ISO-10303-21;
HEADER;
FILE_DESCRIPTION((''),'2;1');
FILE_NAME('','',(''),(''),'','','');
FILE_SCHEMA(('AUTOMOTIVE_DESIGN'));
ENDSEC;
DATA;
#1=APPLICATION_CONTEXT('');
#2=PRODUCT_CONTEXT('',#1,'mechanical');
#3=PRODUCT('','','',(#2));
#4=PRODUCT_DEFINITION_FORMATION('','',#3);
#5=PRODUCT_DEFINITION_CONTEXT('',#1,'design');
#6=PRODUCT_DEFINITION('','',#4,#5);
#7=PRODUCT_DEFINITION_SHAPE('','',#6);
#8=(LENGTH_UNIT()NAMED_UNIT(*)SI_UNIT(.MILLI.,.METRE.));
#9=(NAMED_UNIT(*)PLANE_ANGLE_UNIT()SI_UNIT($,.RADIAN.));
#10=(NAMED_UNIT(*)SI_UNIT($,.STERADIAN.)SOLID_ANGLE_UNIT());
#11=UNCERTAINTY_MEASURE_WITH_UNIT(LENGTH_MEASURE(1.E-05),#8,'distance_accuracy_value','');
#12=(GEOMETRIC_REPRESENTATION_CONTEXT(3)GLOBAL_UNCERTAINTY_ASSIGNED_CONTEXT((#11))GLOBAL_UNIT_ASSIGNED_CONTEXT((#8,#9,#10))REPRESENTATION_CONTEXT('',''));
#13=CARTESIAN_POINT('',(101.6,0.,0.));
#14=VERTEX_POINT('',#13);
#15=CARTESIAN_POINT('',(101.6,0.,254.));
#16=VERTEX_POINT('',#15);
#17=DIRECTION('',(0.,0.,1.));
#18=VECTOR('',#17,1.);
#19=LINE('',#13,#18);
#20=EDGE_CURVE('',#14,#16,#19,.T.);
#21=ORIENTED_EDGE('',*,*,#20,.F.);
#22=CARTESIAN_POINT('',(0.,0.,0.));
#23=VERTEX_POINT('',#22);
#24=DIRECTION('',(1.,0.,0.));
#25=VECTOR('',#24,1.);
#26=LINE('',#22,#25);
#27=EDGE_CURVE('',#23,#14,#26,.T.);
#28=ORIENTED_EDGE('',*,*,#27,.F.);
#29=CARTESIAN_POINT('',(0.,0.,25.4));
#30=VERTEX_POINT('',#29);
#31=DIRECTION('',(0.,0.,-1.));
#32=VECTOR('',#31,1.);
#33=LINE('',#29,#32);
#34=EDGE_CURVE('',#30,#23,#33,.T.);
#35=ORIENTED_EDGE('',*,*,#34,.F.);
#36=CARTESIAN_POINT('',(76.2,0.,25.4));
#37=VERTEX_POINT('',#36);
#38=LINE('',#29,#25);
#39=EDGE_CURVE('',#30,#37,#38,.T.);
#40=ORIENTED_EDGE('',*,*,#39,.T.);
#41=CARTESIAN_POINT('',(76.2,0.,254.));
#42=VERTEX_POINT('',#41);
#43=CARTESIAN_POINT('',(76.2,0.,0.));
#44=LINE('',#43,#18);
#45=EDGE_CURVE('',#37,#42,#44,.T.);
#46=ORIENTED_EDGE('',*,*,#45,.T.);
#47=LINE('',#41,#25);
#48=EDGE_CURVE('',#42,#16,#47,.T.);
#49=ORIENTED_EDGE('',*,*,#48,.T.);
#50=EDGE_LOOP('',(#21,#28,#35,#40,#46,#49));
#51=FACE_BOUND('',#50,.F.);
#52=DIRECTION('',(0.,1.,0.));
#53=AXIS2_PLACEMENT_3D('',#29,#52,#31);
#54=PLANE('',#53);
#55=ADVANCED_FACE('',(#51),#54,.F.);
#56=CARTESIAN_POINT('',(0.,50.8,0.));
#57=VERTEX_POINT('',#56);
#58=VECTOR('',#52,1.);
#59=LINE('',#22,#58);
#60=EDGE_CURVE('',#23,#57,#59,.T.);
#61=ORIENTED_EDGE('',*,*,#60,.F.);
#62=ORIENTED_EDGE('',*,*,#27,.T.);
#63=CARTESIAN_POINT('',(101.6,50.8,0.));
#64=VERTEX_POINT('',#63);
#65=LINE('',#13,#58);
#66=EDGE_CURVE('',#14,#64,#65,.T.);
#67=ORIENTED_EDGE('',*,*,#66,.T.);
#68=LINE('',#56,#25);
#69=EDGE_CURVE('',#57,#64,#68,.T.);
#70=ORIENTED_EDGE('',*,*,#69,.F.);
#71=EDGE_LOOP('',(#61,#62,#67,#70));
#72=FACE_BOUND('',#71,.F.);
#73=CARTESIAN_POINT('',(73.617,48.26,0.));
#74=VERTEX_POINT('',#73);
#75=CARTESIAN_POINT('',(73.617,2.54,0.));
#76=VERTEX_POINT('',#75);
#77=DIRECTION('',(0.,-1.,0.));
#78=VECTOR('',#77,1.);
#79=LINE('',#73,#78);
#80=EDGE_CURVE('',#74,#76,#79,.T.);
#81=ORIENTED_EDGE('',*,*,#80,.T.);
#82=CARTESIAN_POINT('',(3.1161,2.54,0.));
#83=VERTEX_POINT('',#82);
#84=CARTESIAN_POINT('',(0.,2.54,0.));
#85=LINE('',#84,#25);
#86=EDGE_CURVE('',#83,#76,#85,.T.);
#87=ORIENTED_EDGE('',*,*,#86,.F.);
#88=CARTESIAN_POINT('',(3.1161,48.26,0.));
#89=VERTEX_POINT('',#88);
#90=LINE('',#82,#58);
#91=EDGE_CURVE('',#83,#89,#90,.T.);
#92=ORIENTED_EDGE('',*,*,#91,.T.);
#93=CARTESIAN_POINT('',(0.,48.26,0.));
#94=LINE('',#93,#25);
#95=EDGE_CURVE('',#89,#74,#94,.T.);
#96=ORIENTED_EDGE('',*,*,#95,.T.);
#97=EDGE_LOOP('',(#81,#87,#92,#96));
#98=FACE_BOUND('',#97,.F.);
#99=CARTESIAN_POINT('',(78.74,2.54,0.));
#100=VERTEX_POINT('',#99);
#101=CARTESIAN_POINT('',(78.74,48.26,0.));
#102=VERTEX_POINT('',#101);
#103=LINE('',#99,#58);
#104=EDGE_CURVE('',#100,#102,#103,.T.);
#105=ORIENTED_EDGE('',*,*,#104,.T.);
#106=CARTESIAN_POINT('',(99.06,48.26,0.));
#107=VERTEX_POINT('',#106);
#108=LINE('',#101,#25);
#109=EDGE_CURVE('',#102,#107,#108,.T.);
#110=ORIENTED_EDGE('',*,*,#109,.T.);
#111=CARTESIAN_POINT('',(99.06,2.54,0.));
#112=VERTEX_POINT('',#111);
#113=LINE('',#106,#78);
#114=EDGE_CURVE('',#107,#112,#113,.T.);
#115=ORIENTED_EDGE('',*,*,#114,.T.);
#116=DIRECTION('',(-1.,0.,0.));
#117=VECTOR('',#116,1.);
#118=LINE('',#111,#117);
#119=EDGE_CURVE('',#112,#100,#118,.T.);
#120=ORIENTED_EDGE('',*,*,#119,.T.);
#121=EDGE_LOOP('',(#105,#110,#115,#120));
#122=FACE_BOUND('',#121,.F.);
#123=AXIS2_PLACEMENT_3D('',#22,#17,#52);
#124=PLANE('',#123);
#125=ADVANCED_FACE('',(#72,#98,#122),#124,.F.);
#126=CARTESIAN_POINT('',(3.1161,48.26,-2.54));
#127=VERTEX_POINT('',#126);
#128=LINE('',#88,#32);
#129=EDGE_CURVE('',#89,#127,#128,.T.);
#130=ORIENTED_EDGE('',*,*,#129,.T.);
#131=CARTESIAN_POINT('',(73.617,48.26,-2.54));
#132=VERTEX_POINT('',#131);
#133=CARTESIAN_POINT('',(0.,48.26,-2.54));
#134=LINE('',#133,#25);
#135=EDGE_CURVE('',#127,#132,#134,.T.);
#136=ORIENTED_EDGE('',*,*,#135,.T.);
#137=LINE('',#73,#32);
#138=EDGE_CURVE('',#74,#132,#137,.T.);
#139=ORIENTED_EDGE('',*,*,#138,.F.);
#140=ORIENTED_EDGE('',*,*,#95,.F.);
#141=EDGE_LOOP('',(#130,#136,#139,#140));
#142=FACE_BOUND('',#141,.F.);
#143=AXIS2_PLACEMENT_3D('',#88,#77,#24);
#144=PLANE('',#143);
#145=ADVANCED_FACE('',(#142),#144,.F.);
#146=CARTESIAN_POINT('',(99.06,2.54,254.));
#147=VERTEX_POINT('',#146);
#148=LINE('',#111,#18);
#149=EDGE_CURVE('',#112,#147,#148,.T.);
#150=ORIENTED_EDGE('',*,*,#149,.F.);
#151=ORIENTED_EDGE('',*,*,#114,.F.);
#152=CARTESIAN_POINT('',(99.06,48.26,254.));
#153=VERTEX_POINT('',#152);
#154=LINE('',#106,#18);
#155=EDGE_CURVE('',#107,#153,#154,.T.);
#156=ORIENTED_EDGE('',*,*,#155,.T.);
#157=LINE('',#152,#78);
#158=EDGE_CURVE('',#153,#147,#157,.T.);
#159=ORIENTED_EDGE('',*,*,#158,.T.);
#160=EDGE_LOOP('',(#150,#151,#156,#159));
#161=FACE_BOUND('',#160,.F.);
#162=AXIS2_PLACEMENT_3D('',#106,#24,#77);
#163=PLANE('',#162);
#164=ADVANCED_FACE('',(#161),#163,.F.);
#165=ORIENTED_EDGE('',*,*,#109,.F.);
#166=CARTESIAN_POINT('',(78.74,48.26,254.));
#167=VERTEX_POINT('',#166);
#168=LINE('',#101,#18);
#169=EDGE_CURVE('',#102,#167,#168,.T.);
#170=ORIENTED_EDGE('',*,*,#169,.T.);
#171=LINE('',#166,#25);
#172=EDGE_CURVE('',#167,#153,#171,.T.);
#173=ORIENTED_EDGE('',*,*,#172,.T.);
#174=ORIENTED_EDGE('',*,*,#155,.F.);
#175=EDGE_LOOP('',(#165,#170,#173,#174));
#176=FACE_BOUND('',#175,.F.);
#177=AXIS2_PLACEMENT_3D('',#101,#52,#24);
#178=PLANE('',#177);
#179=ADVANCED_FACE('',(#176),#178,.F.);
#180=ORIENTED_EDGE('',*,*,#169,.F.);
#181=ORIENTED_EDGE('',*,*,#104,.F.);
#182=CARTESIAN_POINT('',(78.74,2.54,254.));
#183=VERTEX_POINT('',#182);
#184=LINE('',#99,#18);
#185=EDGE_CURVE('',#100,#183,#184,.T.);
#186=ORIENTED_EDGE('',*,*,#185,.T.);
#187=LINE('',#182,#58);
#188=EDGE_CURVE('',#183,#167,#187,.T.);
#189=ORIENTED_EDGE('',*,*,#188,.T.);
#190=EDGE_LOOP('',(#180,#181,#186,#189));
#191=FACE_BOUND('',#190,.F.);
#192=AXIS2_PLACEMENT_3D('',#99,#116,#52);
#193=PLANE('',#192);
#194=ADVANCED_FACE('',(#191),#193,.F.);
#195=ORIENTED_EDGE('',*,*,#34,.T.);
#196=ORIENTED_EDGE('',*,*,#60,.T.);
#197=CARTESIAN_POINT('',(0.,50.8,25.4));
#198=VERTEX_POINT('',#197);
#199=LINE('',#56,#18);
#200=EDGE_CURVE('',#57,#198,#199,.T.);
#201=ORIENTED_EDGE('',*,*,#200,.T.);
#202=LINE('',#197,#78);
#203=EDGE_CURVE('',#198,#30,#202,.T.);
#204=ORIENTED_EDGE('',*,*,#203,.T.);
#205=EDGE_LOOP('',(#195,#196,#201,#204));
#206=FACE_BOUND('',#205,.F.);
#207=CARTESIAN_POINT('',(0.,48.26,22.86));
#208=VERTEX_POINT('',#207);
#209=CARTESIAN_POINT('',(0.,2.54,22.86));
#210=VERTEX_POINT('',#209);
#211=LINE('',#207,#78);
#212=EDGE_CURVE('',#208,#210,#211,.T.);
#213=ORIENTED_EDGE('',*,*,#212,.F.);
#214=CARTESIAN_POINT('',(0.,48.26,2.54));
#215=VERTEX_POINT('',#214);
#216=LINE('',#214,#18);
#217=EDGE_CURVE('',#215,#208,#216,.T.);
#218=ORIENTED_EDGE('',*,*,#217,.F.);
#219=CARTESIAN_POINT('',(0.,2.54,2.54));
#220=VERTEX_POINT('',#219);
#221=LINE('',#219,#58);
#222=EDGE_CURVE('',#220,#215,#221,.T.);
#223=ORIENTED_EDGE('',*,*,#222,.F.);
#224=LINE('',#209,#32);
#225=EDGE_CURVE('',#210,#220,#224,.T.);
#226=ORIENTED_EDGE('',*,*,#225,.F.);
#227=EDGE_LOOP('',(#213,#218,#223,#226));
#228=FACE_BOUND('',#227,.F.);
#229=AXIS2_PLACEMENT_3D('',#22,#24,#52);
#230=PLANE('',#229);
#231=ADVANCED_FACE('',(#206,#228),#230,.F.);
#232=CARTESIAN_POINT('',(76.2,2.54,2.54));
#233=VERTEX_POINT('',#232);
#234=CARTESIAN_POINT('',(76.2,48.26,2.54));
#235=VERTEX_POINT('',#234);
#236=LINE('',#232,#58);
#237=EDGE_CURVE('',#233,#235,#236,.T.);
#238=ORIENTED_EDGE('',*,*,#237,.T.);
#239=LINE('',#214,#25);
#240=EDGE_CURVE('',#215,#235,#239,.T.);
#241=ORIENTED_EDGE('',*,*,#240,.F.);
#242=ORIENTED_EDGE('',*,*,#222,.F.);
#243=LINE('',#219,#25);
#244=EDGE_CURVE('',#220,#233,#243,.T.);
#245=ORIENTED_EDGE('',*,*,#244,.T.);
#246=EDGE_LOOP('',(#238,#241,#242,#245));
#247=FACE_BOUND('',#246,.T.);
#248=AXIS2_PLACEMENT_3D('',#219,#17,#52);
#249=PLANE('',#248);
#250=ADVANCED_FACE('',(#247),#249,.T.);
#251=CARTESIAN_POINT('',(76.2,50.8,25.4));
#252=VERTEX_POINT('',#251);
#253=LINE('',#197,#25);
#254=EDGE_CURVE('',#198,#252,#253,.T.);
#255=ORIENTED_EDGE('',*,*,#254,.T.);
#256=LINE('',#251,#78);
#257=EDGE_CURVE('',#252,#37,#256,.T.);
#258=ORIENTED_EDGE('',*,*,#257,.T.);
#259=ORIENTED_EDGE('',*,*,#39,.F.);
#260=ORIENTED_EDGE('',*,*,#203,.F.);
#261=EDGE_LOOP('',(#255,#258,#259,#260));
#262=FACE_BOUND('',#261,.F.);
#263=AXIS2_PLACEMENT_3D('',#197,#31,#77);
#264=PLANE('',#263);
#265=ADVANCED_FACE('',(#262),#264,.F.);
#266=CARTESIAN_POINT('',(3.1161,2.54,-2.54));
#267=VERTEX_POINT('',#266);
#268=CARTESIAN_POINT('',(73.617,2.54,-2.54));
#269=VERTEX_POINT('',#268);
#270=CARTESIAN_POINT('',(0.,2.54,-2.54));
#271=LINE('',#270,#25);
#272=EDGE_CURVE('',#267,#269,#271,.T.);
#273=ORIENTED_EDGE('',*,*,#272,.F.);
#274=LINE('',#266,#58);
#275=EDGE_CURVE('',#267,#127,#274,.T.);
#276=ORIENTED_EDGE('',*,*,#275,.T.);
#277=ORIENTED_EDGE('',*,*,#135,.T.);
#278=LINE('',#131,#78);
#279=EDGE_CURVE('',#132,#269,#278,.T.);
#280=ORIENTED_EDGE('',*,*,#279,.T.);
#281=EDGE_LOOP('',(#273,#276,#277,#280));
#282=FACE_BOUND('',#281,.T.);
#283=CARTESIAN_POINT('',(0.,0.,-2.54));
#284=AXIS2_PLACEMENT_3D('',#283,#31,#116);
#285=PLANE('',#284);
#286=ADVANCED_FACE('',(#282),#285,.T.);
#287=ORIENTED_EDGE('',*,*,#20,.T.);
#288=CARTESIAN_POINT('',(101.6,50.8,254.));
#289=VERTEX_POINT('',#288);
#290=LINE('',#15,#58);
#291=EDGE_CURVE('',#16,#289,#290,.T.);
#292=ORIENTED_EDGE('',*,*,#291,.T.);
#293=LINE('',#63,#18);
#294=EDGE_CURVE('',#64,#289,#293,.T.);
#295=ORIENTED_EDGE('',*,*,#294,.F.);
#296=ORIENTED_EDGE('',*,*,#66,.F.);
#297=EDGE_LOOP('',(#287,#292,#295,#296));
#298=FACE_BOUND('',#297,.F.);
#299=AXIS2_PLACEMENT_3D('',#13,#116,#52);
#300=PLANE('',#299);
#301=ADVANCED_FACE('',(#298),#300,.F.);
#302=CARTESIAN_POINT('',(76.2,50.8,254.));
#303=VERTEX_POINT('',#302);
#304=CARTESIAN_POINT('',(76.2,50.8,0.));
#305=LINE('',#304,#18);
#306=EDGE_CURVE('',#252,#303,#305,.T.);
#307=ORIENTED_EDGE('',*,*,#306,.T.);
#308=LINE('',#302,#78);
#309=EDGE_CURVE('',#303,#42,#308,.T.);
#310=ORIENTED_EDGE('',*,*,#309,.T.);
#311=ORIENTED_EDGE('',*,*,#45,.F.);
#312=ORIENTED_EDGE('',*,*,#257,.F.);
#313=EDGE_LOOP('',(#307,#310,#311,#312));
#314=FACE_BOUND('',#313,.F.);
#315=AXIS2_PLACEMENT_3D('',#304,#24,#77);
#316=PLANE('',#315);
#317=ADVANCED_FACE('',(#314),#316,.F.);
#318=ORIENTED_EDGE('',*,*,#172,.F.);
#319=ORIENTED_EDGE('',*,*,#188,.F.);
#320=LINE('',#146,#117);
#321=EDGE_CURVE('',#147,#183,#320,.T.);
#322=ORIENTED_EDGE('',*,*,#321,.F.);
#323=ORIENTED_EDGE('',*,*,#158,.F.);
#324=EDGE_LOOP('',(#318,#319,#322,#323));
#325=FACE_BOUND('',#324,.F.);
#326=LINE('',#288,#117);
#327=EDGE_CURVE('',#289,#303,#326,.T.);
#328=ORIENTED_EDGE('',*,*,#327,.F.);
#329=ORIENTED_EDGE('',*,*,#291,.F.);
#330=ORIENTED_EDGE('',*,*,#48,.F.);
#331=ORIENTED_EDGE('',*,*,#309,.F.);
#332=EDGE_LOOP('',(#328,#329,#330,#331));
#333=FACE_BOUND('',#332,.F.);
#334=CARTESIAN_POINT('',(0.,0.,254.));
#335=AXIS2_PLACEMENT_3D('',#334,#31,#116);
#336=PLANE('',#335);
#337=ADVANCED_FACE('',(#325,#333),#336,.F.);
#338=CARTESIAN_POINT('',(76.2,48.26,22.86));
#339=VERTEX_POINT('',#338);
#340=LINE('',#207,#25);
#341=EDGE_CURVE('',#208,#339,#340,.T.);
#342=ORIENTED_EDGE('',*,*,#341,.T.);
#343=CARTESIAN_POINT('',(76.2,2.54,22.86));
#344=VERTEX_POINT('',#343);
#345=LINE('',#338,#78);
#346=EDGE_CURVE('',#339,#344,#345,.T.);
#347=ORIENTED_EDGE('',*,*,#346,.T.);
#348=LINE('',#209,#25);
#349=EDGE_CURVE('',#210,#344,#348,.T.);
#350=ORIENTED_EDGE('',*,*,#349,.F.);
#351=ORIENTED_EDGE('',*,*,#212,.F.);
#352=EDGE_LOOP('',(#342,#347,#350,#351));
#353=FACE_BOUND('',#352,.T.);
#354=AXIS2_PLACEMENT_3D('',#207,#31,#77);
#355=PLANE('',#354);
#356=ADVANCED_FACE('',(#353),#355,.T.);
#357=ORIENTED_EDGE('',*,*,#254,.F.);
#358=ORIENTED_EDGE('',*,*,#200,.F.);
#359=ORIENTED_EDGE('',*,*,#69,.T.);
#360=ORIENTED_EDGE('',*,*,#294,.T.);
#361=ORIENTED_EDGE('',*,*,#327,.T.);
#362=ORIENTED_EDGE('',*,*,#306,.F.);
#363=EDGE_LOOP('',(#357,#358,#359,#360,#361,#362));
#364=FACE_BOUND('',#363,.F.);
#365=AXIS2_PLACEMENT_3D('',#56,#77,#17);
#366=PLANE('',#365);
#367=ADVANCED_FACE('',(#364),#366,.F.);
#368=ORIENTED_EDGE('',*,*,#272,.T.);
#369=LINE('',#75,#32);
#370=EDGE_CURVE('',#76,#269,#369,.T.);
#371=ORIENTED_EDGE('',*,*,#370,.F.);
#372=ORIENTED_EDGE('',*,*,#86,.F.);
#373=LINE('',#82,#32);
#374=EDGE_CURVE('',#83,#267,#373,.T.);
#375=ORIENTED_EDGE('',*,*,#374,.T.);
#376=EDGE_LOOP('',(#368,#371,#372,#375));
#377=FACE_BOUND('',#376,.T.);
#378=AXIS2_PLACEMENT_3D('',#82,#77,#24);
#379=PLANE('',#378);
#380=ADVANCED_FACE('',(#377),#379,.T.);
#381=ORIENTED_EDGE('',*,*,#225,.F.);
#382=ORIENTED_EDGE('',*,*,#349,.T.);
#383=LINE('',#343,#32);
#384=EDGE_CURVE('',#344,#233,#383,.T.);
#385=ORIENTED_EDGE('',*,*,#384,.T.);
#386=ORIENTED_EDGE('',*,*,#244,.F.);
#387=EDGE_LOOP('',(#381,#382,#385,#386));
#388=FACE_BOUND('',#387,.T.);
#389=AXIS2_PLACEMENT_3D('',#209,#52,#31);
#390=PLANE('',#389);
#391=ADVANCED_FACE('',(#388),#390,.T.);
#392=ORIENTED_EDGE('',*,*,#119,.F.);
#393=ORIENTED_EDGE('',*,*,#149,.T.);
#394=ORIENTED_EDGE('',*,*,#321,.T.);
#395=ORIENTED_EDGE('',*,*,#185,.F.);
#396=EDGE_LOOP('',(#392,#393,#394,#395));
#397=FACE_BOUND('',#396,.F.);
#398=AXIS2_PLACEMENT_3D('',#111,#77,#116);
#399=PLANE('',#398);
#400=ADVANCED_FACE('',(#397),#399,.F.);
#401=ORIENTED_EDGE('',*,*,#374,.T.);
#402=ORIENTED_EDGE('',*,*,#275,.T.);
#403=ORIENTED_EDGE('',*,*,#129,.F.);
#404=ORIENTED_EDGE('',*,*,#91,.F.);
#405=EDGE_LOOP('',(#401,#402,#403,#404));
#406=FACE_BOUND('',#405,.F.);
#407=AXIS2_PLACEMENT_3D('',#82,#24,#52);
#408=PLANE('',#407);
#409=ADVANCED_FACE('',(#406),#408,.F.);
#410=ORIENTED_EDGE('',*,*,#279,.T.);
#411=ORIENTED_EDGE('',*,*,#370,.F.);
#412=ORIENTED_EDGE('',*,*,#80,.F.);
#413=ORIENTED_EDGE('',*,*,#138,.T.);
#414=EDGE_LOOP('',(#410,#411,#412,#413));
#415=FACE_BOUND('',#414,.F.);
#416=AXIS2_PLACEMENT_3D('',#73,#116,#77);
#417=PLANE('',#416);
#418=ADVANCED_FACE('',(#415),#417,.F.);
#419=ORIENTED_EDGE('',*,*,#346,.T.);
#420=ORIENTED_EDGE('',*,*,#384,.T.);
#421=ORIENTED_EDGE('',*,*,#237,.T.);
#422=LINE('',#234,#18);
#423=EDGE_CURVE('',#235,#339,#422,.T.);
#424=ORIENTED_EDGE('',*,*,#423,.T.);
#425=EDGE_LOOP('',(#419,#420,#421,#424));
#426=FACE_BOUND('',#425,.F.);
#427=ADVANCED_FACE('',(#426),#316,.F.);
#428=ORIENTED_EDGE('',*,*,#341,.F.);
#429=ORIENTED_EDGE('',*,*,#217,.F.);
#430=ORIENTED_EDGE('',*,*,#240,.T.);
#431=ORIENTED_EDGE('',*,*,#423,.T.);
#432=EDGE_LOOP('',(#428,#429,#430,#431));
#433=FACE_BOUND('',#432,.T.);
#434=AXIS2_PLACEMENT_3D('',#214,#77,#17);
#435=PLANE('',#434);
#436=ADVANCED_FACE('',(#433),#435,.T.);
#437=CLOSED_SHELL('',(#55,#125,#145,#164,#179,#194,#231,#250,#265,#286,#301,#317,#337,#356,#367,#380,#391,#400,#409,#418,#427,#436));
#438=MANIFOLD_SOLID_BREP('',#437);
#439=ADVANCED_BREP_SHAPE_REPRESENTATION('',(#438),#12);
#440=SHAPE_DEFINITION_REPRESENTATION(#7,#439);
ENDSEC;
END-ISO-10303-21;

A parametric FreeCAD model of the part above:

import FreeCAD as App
import Part
import Sketcher
Q = App.Units.Quantity


def add_polygon(sketch, points):
    """Adds a closed chain of lines whose ends are joined by coincident constraints."""
    first, n = sketch.GeometryCount, len(points)
    for a, b in zip(points, points[1:] + points[:1]):
        sketch.addGeometry(Part.LineSegment(App.Vector(*a, 0), App.Vector(*b, 0)), False)
    for i in range(n):
        sketch.addConstraint(Sketcher.Constraint("Coincident", first + i, 2, first + (i + 1) % n, 1))

doc = App.newDocument("Part")
body = doc.addObject("PartDesign::Body", "Body")

# Sketch on YZ plane
sketch1 = body.newObject("Sketcher::SketchObject", "Sketch")
sketch1.AttachmentSupport = (doc.getObject("YZ_Plane"), [""])
sketch1.MapMode = "FlatFace"
add_polygon(sketch1, [(0, 25.4), (0, 0), (50.8, 0), (50.8, 25.4)])  # lines 0-3
add_polygon(sketch1, [(2.54, 22.86), (48.26, 22.86), (48.26, 2.54), (2.54, 2.54)])  # lines 4-7
sketch1.addConstraint(Sketcher.Constraint("Vertical", 0))
sketch1.addConstraint(Sketcher.Constraint("Horizontal", 1))
sketch1.addConstraint(Sketcher.Constraint("Vertical", 2))
sketch1.addConstraint(Sketcher.Constraint("Horizontal", 3))
sketch1.addConstraint(Sketcher.Constraint("Horizontal", 4))
sketch1.addConstraint(Sketcher.Constraint("Vertical", 5))
sketch1.addConstraint(Sketcher.Constraint("Horizontal", 6))
sketch1.addConstraint(Sketcher.Constraint("Vertical", 7))
sketch1.addConstraint(Sketcher.Constraint("Coincident", 0, 2, -1, 1))
sketch1.addConstraint(Sketcher.Constraint("DistanceX", 1, 1, 1, 2, Q("2 in")))
sketch1.addConstraint(Sketcher.Constraint("DistanceY", 0, 2, 0, 1, Q("1 in")))
sketch1.addConstraint(Sketcher.Constraint("DistanceY", -1, 1, 5, 2, Q("0.1 in")))
sketch1.addConstraint(Sketcher.Constraint("DistanceX", -1, 1, 6, 2, Q("0.1 in")))
sketch1.addConstraint(Sketcher.Constraint("DistanceX", 4, 2, 2, 2, Q("0.1 in")))
sketch1.addConstraint(Sketcher.Constraint("DistanceY", 4, 2, 2, 2, Q("0.1 in")))
pad1 = body.newObject("PartDesign::Pad", "Pad")
pad1.Profile = sketch1
pad1.Length = Q("3 in")

# Sketch on XY plane
sketch2 = body.newObject("Sketcher::SketchObject", "Sketch001")
sketch2.AttachmentSupport = (doc.getObject("XY_Plane"), [""])
sketch2.MapMode = "FlatFace"
add_polygon(sketch2, [(101.6, 0), (76.2, 0), (76.2, 50.8), (101.6, 50.8)])  # lines 0-3
add_polygon(sketch2, [(99.06, 48.26), (78.74, 48.26), (78.74, 2.54), (99.06, 2.54)])  # lines 4-7
sketch2.addConstraint(Sketcher.Constraint("Horizontal", 0))
sketch2.addConstraint(Sketcher.Constraint("Vertical", 1))
sketch2.addConstraint(Sketcher.Constraint("Horizontal", 2))
sketch2.addConstraint(Sketcher.Constraint("Vertical", 3))
sketch2.addConstraint(Sketcher.Constraint("Horizontal", 4))
sketch2.addConstraint(Sketcher.Constraint("Vertical", 5))
sketch2.addConstraint(Sketcher.Constraint("Horizontal", 6))
sketch2.addConstraint(Sketcher.Constraint("Vertical", 7))
sketch2.addConstraint(Sketcher.Constraint("PointOnObject", 0, 2, -1))
sketch2.addConstraint(Sketcher.Constraint("DistanceX", 0, 2, 0, 1, Q("1 in")))
sketch2.addConstraint(Sketcher.Constraint("DistanceY", 1, 1, 1, 2, Q("2 in")))
sketch2.addConstraint(Sketcher.Constraint("DistanceY", -1, 1, 5, 2, Q("0.1 in")))
sketch2.addConstraint(Sketcher.Constraint("DistanceX", 1, 2, 4, 2, Q("0.1 in")))
sketch2.addConstraint(Sketcher.Constraint("DistanceY", 4, 2, 1, 2, Q("0.1 in")))
sketch2.addConstraint(Sketcher.Constraint("DistanceX", 6, 2, 3, 2, Q("0.1 in")))
sketch2.addConstraint(Sketcher.Constraint("DistanceX", -1, 1, 0, 2, Q("3 in")))
pad2 = body.newObject("PartDesign::Pad", "Pad001")
pad2.Profile = sketch2
pad2.Length = Q("10 in")

# Sketch on XY plane
sketch3 = body.newObject("Sketcher::SketchObject", "Sketch002")
sketch3.AttachmentSupport = (doc.getObject("XY_Plane"), [""])
sketch3.MapMode = "FlatFace"
add_polygon(sketch3, [(73.617, 2.54), (3.1161, 2.54), (3.1161, 48.26), (73.617, 48.26)])  # lines 0-3
sketch3.addConstraint(Sketcher.Constraint("Horizontal", 0))
sketch3.addConstraint(Sketcher.Constraint("Vertical", 1))
sketch3.addConstraint(Sketcher.Constraint("Horizontal", 2))
sketch3.addConstraint(Sketcher.Constraint("Vertical", 3))
sketch3.addConstraint(Sketcher.Constraint("DistanceY", 1, 1, 1, 2, Q("1.8 in")))
sketch3.addConstraint(Sketcher.Constraint("DistanceY", -1, 1, 0, 2, Q("0.1 in")))
sketch3.addConstraint(Sketcher.Constraint("DistanceX", 0, 2, 0, 1, Q("70.501 mm")))
sketch3.addConstraint(Sketcher.Constraint("DistanceX", -1, 1, 2, 2, Q("2.8983 in")))
pad3 = body.newObject("PartDesign::Pad", "Pad002")
pad3.Profile = sketch3
pad3.Length = Q("0.1 in")
pad3.Reversed = True

doc.recompute()
